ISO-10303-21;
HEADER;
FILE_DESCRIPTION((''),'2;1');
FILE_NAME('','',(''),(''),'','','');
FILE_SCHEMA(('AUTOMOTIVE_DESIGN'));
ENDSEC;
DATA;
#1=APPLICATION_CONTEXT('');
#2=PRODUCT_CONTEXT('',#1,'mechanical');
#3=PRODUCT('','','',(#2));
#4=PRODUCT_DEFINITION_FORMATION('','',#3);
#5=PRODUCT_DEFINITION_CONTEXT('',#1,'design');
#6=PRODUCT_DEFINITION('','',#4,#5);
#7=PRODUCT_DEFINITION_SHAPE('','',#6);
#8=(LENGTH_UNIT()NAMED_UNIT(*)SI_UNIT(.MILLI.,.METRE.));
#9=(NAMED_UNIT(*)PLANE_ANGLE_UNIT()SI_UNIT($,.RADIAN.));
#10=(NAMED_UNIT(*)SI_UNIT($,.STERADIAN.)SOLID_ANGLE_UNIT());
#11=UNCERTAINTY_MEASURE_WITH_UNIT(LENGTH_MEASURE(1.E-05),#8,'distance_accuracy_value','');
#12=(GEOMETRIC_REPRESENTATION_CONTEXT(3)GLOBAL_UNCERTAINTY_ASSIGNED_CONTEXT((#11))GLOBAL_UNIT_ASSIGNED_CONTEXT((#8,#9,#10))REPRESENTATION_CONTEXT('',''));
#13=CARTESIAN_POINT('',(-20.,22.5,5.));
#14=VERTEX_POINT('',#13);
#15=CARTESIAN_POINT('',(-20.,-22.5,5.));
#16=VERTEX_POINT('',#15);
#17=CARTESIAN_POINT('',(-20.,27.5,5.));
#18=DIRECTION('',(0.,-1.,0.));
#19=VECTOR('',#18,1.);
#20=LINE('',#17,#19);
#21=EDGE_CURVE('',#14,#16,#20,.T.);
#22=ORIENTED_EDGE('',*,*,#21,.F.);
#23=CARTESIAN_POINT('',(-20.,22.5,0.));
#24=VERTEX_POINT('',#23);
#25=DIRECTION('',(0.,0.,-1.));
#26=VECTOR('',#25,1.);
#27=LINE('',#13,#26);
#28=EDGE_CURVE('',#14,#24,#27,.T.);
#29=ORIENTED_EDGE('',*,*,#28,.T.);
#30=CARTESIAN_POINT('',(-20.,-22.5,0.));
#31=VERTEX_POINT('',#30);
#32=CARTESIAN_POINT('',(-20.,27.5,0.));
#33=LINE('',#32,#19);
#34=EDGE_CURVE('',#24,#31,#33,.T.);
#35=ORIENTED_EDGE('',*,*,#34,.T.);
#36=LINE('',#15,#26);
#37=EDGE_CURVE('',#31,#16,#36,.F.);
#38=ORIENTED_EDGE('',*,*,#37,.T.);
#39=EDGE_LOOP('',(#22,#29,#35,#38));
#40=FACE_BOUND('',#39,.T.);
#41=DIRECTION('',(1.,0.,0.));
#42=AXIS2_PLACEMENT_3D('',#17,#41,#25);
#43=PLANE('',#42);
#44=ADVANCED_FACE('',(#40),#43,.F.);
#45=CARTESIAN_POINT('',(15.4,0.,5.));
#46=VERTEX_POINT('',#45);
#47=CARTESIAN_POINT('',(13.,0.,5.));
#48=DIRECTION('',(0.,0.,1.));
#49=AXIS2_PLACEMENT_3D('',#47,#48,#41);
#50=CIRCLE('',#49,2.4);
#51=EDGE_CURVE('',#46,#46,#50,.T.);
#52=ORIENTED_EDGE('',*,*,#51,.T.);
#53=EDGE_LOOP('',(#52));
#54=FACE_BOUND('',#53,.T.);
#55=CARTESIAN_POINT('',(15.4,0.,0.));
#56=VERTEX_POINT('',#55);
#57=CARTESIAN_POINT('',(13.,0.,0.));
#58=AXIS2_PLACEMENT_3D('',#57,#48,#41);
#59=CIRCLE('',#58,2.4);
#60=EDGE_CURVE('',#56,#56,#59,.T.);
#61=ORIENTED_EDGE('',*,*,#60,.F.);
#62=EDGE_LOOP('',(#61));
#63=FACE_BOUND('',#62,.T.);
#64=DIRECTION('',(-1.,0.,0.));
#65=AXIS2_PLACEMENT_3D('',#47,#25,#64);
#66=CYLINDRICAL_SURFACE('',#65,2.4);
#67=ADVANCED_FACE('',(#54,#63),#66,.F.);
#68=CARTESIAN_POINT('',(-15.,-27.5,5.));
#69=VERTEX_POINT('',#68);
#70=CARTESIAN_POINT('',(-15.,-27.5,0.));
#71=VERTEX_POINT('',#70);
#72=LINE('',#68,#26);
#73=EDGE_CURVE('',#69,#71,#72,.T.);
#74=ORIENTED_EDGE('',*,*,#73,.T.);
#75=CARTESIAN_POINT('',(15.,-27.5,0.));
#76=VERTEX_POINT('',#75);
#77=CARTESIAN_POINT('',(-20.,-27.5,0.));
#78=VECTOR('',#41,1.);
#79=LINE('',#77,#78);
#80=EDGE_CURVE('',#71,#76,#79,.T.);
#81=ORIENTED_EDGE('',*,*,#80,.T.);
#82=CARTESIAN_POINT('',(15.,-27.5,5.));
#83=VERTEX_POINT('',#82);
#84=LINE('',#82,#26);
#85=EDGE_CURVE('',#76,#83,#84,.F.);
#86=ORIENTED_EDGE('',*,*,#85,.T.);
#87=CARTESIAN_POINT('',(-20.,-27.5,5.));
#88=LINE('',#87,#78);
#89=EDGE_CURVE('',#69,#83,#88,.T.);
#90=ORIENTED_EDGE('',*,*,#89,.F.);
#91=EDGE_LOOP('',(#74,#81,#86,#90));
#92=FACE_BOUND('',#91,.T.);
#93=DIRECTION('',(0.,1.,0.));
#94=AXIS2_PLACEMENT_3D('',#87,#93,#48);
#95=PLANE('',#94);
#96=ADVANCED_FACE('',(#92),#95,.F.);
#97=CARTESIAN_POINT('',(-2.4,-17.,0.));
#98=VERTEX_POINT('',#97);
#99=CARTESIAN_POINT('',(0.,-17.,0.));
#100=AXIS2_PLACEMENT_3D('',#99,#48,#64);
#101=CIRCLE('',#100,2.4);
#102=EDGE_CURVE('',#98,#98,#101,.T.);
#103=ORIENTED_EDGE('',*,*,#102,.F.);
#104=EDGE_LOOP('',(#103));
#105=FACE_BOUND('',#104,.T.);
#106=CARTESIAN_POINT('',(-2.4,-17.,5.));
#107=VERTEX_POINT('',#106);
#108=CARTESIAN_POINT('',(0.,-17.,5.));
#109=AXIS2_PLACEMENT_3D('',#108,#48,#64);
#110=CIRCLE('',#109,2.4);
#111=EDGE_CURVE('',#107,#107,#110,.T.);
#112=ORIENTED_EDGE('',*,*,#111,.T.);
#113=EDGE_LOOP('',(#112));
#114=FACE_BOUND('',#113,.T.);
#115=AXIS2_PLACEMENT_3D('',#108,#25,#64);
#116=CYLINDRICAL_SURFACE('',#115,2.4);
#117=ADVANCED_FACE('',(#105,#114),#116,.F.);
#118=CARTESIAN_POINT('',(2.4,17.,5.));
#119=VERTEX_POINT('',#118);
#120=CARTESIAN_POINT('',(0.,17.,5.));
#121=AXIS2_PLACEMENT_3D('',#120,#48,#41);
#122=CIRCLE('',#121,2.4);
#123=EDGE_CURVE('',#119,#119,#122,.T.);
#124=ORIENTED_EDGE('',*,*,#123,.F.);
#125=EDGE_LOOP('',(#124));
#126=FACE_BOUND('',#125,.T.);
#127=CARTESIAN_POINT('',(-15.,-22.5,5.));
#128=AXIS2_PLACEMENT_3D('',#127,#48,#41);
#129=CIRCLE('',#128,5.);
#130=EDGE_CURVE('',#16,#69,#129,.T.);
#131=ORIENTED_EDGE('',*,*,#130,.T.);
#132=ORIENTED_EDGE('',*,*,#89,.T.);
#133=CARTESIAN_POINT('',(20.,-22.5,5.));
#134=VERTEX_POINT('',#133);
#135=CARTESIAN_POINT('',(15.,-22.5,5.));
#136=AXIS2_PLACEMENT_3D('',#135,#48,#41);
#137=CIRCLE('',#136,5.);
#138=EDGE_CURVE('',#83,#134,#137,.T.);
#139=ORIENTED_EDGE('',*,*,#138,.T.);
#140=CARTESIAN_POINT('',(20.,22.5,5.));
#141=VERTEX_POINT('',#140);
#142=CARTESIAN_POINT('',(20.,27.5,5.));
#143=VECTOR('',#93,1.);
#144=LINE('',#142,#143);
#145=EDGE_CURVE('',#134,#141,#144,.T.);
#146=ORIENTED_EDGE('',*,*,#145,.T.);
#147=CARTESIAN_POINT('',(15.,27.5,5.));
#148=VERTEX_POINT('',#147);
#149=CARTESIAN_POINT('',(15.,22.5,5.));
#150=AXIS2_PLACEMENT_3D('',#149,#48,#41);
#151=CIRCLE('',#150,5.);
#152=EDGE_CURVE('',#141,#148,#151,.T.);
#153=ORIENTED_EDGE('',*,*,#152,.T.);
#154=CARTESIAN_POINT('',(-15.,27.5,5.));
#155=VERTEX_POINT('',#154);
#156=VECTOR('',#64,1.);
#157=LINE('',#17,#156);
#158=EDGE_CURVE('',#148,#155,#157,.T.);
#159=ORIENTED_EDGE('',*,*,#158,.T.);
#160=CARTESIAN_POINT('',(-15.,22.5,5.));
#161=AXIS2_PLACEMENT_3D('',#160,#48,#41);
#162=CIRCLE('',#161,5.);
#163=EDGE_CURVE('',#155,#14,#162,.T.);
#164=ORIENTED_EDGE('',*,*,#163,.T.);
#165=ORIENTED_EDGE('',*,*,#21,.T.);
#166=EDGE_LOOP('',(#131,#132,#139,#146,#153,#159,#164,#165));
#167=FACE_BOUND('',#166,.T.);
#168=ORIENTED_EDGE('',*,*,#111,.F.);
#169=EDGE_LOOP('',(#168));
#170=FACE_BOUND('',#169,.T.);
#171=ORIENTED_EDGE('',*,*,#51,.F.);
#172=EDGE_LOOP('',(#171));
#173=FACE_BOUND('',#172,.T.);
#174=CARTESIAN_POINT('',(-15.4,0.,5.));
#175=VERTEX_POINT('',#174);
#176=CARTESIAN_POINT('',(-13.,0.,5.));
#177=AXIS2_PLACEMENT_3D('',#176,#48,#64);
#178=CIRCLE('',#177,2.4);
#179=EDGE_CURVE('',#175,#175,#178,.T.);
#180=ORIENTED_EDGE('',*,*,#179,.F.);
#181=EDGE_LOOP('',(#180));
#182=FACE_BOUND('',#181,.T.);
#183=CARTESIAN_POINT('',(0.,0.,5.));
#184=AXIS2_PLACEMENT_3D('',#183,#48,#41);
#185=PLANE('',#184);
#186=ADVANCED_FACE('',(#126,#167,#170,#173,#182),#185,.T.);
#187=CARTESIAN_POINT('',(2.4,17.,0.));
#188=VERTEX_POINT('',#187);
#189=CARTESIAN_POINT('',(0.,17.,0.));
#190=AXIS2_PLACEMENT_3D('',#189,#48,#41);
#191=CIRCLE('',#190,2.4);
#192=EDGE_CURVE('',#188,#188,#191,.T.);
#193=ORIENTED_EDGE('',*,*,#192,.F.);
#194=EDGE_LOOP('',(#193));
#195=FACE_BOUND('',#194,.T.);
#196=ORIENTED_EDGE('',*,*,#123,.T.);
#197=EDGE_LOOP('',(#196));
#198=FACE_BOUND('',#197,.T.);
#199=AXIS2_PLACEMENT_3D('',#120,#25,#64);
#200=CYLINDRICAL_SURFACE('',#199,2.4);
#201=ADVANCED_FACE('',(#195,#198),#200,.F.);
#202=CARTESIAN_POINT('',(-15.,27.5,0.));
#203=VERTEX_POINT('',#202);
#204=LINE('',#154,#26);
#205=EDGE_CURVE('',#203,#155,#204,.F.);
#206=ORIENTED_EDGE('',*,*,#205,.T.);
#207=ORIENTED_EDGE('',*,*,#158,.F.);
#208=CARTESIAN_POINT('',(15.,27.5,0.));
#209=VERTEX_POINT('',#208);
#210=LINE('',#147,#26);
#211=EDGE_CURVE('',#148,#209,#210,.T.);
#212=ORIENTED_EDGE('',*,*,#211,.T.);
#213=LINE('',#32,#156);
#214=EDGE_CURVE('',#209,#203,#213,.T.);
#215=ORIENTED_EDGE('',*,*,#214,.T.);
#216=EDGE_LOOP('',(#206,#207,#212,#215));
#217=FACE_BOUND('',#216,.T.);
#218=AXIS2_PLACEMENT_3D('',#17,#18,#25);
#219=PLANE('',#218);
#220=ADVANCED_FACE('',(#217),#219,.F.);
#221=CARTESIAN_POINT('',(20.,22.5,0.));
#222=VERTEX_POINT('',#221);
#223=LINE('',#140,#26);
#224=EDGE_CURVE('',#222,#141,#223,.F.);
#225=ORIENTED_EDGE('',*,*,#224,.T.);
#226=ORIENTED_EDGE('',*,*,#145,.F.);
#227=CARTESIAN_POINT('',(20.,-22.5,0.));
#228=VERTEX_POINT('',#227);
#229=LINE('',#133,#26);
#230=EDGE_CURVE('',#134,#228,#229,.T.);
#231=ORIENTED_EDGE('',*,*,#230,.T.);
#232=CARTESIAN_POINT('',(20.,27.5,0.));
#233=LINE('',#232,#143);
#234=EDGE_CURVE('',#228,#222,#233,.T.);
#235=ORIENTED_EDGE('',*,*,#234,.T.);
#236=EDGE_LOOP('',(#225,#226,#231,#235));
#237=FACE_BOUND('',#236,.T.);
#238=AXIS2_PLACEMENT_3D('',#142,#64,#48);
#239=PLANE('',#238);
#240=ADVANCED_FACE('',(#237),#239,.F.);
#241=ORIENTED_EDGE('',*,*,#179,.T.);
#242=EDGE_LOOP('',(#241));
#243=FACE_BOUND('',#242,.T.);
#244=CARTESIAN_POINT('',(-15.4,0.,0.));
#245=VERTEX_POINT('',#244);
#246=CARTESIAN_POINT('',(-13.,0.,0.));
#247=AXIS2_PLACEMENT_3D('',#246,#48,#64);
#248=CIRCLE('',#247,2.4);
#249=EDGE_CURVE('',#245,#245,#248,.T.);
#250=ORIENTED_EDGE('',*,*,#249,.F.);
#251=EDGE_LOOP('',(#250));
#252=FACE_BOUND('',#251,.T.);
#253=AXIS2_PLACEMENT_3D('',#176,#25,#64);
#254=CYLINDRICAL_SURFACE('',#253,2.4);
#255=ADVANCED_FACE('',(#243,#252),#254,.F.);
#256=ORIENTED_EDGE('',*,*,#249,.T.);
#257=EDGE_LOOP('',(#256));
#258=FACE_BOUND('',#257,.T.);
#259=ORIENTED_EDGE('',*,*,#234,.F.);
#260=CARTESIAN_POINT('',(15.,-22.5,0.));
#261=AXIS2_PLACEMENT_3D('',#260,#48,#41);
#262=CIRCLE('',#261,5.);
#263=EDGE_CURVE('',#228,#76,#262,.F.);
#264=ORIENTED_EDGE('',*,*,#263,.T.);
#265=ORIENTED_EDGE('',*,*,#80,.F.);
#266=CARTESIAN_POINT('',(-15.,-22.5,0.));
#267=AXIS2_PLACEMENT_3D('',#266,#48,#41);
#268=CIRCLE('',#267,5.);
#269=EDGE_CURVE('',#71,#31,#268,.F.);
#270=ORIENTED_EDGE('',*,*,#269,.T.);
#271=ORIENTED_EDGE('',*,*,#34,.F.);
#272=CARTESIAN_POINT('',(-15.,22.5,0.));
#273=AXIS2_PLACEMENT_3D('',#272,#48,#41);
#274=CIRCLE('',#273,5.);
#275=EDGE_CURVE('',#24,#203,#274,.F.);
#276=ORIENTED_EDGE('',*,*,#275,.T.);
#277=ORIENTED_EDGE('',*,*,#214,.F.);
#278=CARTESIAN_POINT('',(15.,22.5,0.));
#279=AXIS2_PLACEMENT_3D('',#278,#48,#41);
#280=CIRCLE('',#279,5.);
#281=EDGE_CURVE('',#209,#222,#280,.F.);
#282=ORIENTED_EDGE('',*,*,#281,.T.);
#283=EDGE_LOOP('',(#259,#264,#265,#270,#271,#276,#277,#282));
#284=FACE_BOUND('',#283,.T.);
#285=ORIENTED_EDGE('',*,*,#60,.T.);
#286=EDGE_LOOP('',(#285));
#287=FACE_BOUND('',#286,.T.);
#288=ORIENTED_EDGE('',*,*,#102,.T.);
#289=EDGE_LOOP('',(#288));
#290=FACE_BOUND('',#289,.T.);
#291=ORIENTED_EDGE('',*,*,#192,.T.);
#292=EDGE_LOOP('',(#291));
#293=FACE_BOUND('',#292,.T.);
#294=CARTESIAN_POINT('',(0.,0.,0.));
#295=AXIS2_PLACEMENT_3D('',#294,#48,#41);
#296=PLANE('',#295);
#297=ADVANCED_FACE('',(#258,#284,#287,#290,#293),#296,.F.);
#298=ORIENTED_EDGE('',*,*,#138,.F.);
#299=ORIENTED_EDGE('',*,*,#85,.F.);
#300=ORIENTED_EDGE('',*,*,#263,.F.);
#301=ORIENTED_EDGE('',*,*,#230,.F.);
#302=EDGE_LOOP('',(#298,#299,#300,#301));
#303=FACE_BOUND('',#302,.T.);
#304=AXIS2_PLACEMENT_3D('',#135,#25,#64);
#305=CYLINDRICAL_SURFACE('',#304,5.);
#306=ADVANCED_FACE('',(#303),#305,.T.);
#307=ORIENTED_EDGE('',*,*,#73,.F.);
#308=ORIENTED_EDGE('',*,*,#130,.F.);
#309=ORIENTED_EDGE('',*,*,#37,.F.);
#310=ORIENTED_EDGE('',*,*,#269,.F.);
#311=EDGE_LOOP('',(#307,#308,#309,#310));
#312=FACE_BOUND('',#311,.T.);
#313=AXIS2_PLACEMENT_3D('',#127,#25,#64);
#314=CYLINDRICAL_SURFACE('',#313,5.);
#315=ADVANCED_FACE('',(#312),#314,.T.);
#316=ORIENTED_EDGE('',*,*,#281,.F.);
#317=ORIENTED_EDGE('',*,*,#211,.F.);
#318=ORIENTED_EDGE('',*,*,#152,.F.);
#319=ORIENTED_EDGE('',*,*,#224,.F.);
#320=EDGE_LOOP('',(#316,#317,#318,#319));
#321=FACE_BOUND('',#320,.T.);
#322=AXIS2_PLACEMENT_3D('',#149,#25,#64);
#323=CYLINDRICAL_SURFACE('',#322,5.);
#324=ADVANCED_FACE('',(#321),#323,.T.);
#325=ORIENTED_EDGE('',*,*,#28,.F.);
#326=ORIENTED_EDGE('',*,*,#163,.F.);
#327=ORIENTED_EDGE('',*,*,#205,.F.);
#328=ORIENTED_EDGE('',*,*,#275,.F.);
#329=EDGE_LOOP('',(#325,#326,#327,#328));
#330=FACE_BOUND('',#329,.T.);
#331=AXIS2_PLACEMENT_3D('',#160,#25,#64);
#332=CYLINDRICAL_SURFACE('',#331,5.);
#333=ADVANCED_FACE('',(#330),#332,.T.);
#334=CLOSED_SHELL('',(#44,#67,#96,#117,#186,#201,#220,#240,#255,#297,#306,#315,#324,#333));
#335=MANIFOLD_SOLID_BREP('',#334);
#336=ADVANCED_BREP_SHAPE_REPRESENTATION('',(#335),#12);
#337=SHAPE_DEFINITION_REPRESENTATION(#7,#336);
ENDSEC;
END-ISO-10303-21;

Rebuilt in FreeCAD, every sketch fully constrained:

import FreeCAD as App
import Part
import Sketcher
from FreeCAD import Vector
Q = App.Units.Quantity


def edges_at(feature, points):
    """Names of the edges that pass closest to the given points."""
    edges = feature.Shape.Edges
    near = lambda p: min(range(len(edges)), key=lambda i: edges[i].distToShape(Part.Vertex(*p))[0])
    return sorted({f"Edge{near(p) + 1}" for p in points})


def add_polygon(sketch, points):
    """Adds a closed chain of lines whose ends are joined by coincident constraints."""
    first, n = sketch.GeometryCount, len(points)
    for a, b in zip(points, points[1:] + points[:1]):
        sketch.addGeometry(Part.LineSegment(App.Vector(*a, 0), App.Vector(*b, 0)), False)
    for i in range(n):
        sketch.addConstraint(Sketcher.Constraint("Coincident", first + i, 2, first + (i + 1) % n, 1))

doc = App.newDocument("Part")
body = doc.addObject("PartDesign::Body", "Body")

# Sketch on XY plane
sketch1 = body.newObject("Sketcher::SketchObject", "Sketch")
sketch1.AttachmentSupport = (doc.getObject("XY_Plane"), [""])
sketch1.MapMode = "FlatFace"
add_polygon(sketch1, [(-20, 27.5), (-20, -27.5), (20, -27.5), (20, 27.5)])  # lines 0-3
sketch1.addGeometry(Part.Circle(Vector(0, -17, 0), Vector(0, 0, 1), 2.4), False)  # 4
sketch1.addGeometry(Part.Circle(Vector(-13, 0, 0), Vector(0, 0, 1), 2.4), False)  # 5
sketch1.addGeometry(Part.Circle(Vector(0, 17, 0), Vector(0, 0, 1), 2.4), False)  # 6
sketch1.addGeometry(Part.Circle(Vector(13, 0, 0), Vector(0, 0, 1), 2.4), False)  # 7
sketch1.addConstraint(Sketcher.Constraint("Vertical", 0))
sketch1.addConstraint(Sketcher.Constraint("Horizontal", 1))
sketch1.addConstraint(Sketcher.Constraint("Vertical", 2))
sketch1.addConstraint(Sketcher.Constraint("Horizontal", 3))
sketch1.addConstraint(Sketcher.Constraint("Equal", 4, 5))
sketch1.addConstraint(Sketcher.Constraint("Equal", 5, 6))
sketch1.addConstraint(Sketcher.Constraint("Equal", 6, 7))
sketch1.addConstraint(Sketcher.Constraint("Symmetric", 4, 3, 6, 3, -1, 1))
sketch1.addConstraint(Sketcher.Constraint("Symmetric", 5, 3, 7, 3, -1, 1))
sketch1.addConstraint(Sketcher.Constraint("Symmetric", 0, 2, 2, 2, -1, 1))
sketch1.addConstraint(Sketcher.Constraint("PointOnObject", 4, 3, -2))
sketch1.addConstraint(Sketcher.Constraint("PointOnObject", 5, 3, -1))
sketch1.addConstraint(Sketcher.Constraint("Diameter", 4, Q("4.8 mm")))
sketch1.addConstraint(Sketcher.Constraint("DistanceX", 1, 1, 1, 2, Q("40 mm")))
sketch1.addConstraint(Sketcher.Constraint("DistanceY", 0, 2, 0, 1, Q("55 mm")))
sketch1.addConstraint(Sketcher.Constraint("DistanceY", 4, 3, -1, 1, Q("17 mm")))
sketch1.addConstraint(Sketcher.Constraint("DistanceX", 5, 3, -1, 1, Q("13 mm")))
pad1 = body.newObject("PartDesign::Pad", "Pad")
pad1.Profile = sketch1
pad1.Length = 5
doc.recompute()

fillet = body.newObject("PartDesign::Fillet", "Fillet")
fillet.Base = (pad1, edges_at(pad1, [
    (20, -27.5, 2.5),
    (-20, -27.5, 2.5),
    (-20, 27.5, 2.5),
    (20, 27.5, 2.5),
]))
fillet.Radius = 5

doc.recompute()
